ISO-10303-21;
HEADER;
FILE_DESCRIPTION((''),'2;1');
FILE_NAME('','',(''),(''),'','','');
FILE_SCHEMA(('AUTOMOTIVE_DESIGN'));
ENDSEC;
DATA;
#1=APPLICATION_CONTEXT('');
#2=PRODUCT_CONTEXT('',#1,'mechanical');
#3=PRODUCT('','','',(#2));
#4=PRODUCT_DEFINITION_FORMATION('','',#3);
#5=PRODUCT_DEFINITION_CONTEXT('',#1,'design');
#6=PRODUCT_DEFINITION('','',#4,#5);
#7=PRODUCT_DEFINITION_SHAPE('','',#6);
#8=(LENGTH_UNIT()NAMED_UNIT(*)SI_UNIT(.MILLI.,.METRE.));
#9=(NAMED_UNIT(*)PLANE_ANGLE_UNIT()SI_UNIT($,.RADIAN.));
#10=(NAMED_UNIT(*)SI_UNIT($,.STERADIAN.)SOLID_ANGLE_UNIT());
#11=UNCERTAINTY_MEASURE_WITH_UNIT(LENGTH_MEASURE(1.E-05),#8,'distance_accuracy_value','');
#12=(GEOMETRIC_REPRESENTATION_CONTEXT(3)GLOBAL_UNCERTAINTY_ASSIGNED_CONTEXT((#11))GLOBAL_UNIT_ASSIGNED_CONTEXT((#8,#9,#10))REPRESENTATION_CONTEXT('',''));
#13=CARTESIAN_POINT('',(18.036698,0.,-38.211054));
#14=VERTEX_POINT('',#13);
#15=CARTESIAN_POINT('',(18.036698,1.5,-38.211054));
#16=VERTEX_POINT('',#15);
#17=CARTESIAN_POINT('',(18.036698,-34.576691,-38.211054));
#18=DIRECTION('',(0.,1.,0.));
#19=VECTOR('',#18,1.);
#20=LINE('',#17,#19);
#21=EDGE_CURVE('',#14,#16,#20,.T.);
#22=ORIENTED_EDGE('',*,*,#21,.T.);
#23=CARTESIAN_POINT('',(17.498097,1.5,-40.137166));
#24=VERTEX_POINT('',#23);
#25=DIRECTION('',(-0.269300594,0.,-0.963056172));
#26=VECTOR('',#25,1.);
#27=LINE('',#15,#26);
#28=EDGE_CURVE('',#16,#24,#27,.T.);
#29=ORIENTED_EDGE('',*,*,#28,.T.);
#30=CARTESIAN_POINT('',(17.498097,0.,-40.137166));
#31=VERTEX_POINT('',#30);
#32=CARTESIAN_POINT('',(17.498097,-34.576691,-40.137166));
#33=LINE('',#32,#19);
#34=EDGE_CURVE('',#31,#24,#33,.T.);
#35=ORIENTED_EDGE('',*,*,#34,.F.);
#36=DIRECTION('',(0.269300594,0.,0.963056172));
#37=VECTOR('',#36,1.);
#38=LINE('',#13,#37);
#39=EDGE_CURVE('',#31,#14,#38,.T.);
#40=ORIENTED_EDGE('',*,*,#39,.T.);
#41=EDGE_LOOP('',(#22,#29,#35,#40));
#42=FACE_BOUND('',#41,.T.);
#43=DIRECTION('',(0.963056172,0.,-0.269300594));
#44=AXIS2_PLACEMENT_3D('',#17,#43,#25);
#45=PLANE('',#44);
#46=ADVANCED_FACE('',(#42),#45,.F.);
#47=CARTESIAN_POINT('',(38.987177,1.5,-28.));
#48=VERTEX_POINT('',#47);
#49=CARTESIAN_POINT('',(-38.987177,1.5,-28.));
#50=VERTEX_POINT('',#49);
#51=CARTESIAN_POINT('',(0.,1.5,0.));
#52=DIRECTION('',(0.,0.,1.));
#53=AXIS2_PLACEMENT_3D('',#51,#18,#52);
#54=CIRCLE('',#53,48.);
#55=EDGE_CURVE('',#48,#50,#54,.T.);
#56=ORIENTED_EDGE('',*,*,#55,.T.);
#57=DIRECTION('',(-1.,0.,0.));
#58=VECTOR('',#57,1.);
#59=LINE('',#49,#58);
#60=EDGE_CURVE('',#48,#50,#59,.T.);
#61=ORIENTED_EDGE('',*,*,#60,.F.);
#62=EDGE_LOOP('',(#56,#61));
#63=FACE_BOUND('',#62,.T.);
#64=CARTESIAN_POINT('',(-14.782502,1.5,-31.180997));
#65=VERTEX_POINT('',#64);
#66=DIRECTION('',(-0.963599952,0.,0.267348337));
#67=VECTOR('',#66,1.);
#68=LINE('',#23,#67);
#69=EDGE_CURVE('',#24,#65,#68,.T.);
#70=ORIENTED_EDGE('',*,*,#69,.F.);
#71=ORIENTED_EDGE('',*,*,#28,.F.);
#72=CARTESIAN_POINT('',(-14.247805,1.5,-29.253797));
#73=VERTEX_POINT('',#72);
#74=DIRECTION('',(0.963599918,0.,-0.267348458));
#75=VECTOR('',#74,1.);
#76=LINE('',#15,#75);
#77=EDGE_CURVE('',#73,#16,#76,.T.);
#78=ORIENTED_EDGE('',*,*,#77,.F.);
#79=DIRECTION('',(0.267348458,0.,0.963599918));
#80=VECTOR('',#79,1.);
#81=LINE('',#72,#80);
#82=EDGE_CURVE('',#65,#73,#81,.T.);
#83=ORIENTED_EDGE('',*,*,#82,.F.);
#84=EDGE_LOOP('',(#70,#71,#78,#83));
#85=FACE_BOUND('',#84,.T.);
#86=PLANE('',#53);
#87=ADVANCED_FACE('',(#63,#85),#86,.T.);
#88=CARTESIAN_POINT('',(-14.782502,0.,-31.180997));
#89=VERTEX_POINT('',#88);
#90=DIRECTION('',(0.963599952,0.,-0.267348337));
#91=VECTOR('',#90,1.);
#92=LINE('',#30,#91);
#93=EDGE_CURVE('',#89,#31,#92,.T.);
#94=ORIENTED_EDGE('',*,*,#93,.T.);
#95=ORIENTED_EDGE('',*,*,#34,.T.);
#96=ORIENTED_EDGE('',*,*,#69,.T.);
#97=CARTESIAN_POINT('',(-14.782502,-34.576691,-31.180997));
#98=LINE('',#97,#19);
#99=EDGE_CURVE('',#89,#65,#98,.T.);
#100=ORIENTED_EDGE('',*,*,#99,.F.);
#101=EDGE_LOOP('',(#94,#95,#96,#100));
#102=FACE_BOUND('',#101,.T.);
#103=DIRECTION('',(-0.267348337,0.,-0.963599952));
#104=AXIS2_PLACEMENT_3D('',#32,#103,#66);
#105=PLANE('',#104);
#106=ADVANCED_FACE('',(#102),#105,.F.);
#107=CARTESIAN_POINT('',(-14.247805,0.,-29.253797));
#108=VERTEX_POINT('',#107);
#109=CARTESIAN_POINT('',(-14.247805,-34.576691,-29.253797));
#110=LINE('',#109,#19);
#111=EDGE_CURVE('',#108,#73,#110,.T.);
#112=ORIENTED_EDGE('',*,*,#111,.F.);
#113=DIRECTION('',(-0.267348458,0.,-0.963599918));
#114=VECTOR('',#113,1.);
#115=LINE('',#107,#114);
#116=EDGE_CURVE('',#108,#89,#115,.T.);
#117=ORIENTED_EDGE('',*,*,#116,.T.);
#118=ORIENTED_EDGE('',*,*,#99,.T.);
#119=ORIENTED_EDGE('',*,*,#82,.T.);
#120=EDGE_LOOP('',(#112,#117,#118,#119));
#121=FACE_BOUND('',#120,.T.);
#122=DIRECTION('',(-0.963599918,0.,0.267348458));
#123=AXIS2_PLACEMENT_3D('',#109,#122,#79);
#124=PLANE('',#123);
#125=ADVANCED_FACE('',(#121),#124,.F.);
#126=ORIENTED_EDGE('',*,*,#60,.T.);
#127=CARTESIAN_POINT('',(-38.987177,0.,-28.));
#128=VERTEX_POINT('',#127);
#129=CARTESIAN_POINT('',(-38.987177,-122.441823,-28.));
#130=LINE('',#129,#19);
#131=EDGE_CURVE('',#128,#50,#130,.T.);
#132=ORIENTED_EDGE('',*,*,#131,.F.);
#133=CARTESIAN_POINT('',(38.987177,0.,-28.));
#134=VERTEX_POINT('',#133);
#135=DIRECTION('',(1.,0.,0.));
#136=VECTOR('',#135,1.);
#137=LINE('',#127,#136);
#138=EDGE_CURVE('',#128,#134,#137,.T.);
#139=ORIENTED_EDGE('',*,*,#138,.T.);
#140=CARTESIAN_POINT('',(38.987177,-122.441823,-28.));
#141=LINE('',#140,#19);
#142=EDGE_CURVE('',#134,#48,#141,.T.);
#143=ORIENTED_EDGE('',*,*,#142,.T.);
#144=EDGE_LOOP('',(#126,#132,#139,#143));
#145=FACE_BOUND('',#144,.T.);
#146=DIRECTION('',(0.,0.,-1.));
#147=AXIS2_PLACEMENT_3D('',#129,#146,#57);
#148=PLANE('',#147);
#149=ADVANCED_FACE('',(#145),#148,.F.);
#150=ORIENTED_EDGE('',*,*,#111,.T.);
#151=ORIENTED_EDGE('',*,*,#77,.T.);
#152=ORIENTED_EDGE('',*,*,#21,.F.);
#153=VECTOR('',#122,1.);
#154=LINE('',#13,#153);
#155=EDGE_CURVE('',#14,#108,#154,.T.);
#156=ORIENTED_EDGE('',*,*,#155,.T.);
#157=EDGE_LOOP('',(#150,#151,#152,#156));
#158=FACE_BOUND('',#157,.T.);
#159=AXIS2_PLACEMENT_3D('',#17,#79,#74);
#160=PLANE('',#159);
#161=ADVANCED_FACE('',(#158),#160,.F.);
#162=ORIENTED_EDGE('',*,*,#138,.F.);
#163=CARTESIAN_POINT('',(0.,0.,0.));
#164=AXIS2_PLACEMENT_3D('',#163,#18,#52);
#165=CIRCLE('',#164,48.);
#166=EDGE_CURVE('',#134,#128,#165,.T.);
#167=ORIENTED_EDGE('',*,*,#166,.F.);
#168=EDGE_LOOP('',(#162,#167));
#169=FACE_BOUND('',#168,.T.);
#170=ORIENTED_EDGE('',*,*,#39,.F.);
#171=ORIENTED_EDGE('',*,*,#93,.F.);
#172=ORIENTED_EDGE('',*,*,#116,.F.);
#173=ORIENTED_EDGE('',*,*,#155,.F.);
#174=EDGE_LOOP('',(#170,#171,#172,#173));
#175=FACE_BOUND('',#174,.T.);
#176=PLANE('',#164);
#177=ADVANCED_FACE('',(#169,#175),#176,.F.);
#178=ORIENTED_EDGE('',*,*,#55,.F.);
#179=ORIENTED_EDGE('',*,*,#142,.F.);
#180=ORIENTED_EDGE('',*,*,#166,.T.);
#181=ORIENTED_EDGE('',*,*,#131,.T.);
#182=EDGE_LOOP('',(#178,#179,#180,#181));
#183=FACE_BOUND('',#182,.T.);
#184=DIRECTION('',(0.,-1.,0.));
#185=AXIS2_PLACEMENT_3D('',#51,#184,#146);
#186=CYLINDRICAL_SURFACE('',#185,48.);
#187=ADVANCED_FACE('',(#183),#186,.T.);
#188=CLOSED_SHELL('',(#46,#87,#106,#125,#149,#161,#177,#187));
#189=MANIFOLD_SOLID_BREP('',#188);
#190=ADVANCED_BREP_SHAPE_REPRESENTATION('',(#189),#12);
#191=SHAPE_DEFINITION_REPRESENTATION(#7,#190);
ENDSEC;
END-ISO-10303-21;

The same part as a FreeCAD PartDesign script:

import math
import FreeCAD as App
import Part
import Sketcher

V = App.Vector


def add_polygon(sketch, points):
    """Adds a closed chain of lines whose ends are joined by coincident constraints."""
    first, n = sketch.GeometryCount, len(points)
    for a, b in zip(points, points[1:] + points[:1]):
        sketch.addGeometry(Part.LineSegment(App.Vector(*a, 0), App.Vector(*b, 0)), False)
    for i in range(n):
        sketch.addConstraint(Sketcher.Constraint("Coincident", first + i, 2, first + (i + 1) % n, 1))

doc = App.newDocument("Part")
body = doc.addObject("PartDesign::Body", "Body")

# Sketch on XZ plane
sketch1 = body.newObject("Sketcher::SketchObject", "Sketch")
sketch1.AttachmentSupport = (doc.getObject("XZ_Plane"), [""])
sketch1.MapMode = "FlatFace"
sketch1.addGeometry(Part.Circle(V(0, 0, 0), V(0, 0, 1), 48), False)
sketch1.addConstraint([
    Sketcher.Constraint("Coincident", 0, 3, -1, 1),
    Sketcher.Constraint("Diameter", 0, 96.0),
])
pad1 = body.newObject("PartDesign::Pad", "Pad")
pad1.Profile = sketch1
pad1.Length = 1.5
pad1.Reversed = True

# Sketch on XZ plane
sketch2 = body.newObject("Sketcher::SketchObject", "Sketch001")
sketch2.AttachmentSupport = (doc.getObject("XZ_Plane"), [""])
sketch2.MapMode = "FlatFace"
sketch2.addGeometry([
    Part.LineSegment(V(38.987177, -28, 0), V(-38.987177, -28, 0)),
    Part.ArcOfCircle(Part.Circle(V(0, 0, 0), V(0, 0, 1), 48), math.radians(-35.685335), math.radians(215.685335)),
], False)
sketch2.addConstraint([
    Sketcher.Constraint("Coincident", 0, 1, 1, 1),
    Sketcher.Constraint("Coincident", 1, 2, 0, 2),
    Sketcher.Constraint("Horizontal", 0),
    Sketcher.Constraint("Coincident", 1, 3, -1, 1),
    Sketcher.Constraint("Radius", 1, 48.0),
    Sketcher.Constraint("DistanceY", 0, 1, -1, 1, 28.0),
])
pocket1 = body.newObject("PartDesign::Pocket", "Pocket")
pocket1.Profile = sketch2
pocket1.Length = 1.5

# Sketch on XZ plane
sketch3 = body.newObject("Sketcher::SketchObject", "Sketch002")
sketch3.AttachmentSupport = (doc.getObject("XZ_Plane"), [""])
sketch3.MapMode = "FlatFace"
sketch3.AttachmentOffset = App.Placement(V(0, 0, -1.5), App.Rotation())
add_polygon(sketch3, [(17.498097, -40.137166), (-14.782502, -31.180997), (-14.247805, -29.253797), (18.036698, -38.211054)])  # lines 0-3
sketch3.addConstraint([
    Sketcher.Constraint("Perpendicular", 0, 1),
    Sketcher.Constraint("Perpendicular", 1, 2),
    Sketcher.Constraint("Distance", 1, 2.0),
    Sketcher.Constraint("Distance", 0, 33.5),
    Sketcher.Constraint("DistanceX", 0, 2, -1, 1, 14.782502),
    Sketcher.Constraint("DistanceY", 0, 2, 1, 2, 1.9272),
    Sketcher.Constraint("DistanceX", 0, 2, 2, 2, 32.8192),
    Sketcher.Constraint("DistanceY", 0, 2, -1, 1, 31.180997),
])
pocket2 = body.newObject("PartDesign::Pocket", "Pocket001")
pocket2.Profile = sketch3
pocket2.Length = 1.5
pocket2.Reversed = True

doc.recompute()
